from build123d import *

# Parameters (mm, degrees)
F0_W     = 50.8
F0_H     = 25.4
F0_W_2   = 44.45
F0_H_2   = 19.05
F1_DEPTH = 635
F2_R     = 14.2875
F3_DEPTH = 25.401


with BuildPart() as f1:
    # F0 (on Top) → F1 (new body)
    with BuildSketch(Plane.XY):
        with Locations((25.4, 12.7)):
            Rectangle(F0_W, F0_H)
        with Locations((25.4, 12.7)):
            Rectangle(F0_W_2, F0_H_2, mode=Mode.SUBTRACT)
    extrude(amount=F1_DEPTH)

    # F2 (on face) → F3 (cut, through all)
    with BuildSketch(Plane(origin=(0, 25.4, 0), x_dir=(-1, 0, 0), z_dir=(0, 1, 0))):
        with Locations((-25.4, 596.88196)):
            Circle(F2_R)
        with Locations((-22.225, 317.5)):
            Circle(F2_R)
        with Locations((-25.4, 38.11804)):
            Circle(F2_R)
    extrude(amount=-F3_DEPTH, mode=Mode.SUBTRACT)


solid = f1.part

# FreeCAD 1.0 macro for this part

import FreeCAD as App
import Part
import Sketcher
Q = App.Units.Quantity


def add_polygon(sketch, points):
    """Adds a closed chain of lines whose ends are joined by coincident constraints."""
    first, n = sketch.GeometryCount, len(points)
    for a, b in zip(points, points[1:] + points[:1]):
        sketch.addGeometry(Part.LineSegment(App.Vector(*a, 0), App.Vector(*b, 0)), False)
    for i in range(n):
        sketch.addConstraint(Sketcher.Constraint("Coincident", first + i, 2, first + (i + 1) % n, 1))

doc = App.newDocument("Part")
body = doc.addObject("PartDesign::Body", "Body")

# Sketch on XY plane
sketch1 = body.newObject("Sketcher::SketchObject", "Sketch")
sketch1.AttachmentSupport = (doc.getObject("XY_Plane"), [""])
sketch1.MapMode = "FlatFace"
add_polygon(sketch1, [(0, 25.4), (0, 0), (50.8, 0), (50.8, 25.4)])  # lines 0-3
add_polygon(sketch1, [(47.625, 3.175), (3.175, 3.175), (3.175, 22.225), (47.625, 22.225)])  # lines 4-7
sketch1.addConstraint(Sketcher.Constraint("Vertical", 0))
sketch1.addConstraint(Sketcher.Constraint("Horizontal", 1))
sketch1.addConstraint(Sketcher.Constraint("Vertical", 2))
sketch1.addConstraint(Sketcher.Constraint("Horizontal", 3))
sketch1.addConstraint(Sketcher.Constraint("Horizontal", 4))
sketch1.addConstraint(Sketcher.Constraint("Vertical", 5))
sketch1.addConstraint(Sketcher.Constraint("Horizontal", 6))
sketch1.addConstraint(Sketcher.Constraint("Vertical", 7))
sketch1.addConstraint(Sketcher.Constraint("Coincident", 0, 2, -1, 1))
sketch1.addConstraint(Sketcher.Constraint("DistanceX", 1, 1, 1, 2, Q("2 in")))
sketch1.addConstraint(Sketcher.Constraint("DistanceY", 0, 2, 0, 1, Q("1 in")))
sketch1.addConstraint(Sketcher.Constraint("DistanceX", 4, 2, 4, 1, Q("1.75 in")))
sketch1.addConstraint(Sketcher.Constraint("DistanceY", 5, 1, 5, 2, Q("0.75 in")))
sketch1.addConstraint(Sketcher.Constraint("DistanceX", -1, 1, 4, 2, Q("0.125 in")))
sketch1.addConstraint(Sketcher.Constraint("DistanceY", -1, 1, 4, 2, Q("0.125 in")))
pad1 = body.newObject("PartDesign::Pad", "Pad")
pad1.Profile = sketch1
pad1.Length = Q("25 in")

# Sketch on XZ plane
sketch2 = body.newObject("Sketcher::SketchObject", "Sketch001")
sketch2.AttachmentSupport = (doc.getObject("XZ_Plane"), [""])
sketch2.MapMode = "FlatFace"
sketch2.AttachmentOffset = App.Placement(App.Vector(0, 0, -1 * 25.4), App.Rotation())
sketch2.addGeometry(Part.Circle(App.Vector(25.4, 596.88196, 0), App.Vector(0, 0, 1), 14.2875), False)
sketch2.addGeometry(Part.Circle(App.Vector(22.225, 317.5, 0), App.Vector(0, 0, 1), 14.2875), False)
sketch2.addGeometry(Part.Circle(App.Vector(25.4, 38.11804, 0), App.Vector(0, 0, 1), 14.2875), False)
sketch2.addConstraint(Sketcher.Constraint("Equal", 0, 1))
sketch2.addConstraint(Sketcher.Constraint("Equal", 1, 2))
sketch2.addConstraint(Sketcher.Constraint("Vertical", 0, 3, 2, 3))
sketch2.addConstraint(Sketcher.Constraint("Diameter", 0, Q("1.125 in")))
sketch2.addConstraint(Sketcher.Constraint("DistanceX", -1, 1, 0, 3, Q("1 in")))
sketch2.addConstraint(Sketcher.Constraint("DistanceY", -1, 1, 1, 3, Q("12.5 in")))
sketch2.addConstraint(Sketcher.Constraint("DistanceX", -1, 1, 1, 3, Q("0.875 in")))
sketch2.addConstraint(Sketcher.Constraint("DistanceY", -1, 1, 0, 3, 596.88196))
sketch2.addConstraint(Sketcher.Constraint("DistanceY", -1, 1, 2, 3, 38.11804))
pocket1 = body.newObject("PartDesign::Pocket", "Pocket")
pocket1.Profile = sketch2
pocket1.Type = "ThroughAll"
pocket1.Reversed = True

doc.recompute()
